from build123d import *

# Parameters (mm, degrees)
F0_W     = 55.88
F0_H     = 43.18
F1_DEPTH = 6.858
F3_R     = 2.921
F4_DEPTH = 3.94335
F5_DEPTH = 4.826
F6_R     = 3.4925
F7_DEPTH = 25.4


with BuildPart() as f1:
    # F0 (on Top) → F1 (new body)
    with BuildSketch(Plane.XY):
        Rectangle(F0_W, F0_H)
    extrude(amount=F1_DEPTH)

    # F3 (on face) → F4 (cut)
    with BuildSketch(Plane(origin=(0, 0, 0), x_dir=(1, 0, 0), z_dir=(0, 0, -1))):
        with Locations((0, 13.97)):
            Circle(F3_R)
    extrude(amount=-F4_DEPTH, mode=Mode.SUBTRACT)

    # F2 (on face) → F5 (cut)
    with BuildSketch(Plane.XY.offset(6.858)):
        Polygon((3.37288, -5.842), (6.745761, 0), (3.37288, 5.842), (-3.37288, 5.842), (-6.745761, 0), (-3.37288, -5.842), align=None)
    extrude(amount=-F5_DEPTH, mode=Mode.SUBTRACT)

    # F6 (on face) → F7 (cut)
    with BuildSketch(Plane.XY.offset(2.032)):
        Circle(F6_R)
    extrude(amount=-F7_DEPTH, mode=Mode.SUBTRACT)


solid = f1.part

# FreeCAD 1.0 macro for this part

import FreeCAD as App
import Part
import Sketcher
from FreeCAD import Vector
Q = App.Units.Quantity

doc = App.newDocument("Part")
params = doc.addObject("Spreadsheet::Sheet", "Params")
for row, (alias, value) in enumerate([
    ("sketch1_width", "2.2 in"),
    ("sketch1_height", "1.7 in"),
    ("pad1_length", "0.27 in"),
    ("sketch2_diameter", "0.23 in"),
    ("pocket1_length", "3.94335 mm"),
    ("pocket2_length", "0.19 in"),
    ("sketch4_diameter", "0.275 in"),
    ("pocket3_length", "1 in"),
], start=1):
    params.set(f"A{row}", alias)
    params.set(f"B{row}", "=" + value)
    params.setAlias(f"B{row}", alias)

body = doc.addObject("PartDesign::Body", "Body")

# Sketch on XY plane
sketch1 = body.newObject("Sketcher::SketchObject", "Sketch")
sketch1.AttachmentSupport = (doc.getObject("XY_Plane"), [""])
sketch1.MapMode = "FlatFace"
sketch1.addGeometry([
    Part.LineSegment(Vector(-28, 22, 0), Vector(-28, -22, 0)),
    Part.LineSegment(Vector(-28, -22, 0), Vector(28, -22, 0)),
    Part.LineSegment(Vector(28, -22, 0), Vector(28, 22, 0)),
    Part.LineSegment(Vector(28, 22, 0), Vector(-28, 22, 0)),
], False)
sketch1.addConstraint([
    Sketcher.Constraint("Coincident", 0, 2, 1, 1),
    Sketcher.Constraint("Coincident", 1, 2, 2, 1),
    Sketcher.Constraint("Coincident", 2, 2, 3, 1),
    Sketcher.Constraint("Coincident", 3, 2, 0, 1),
    Sketcher.Constraint("Vertical", 0),
    Sketcher.Constraint("Horizontal", 1),
    Sketcher.Constraint("Vertical", 2),
    Sketcher.Constraint("Horizontal", 3),
    Sketcher.Constraint("Symmetric", 0, 2, 2, 2, -1, 1),
    Sketcher.Constraint("DistanceX", 1, 1, 1, 2, Q("2.2 in")),
    Sketcher.Constraint("DistanceY", 0, 2, 0, 1, Q("1.7 in")),
])
sketch1.setExpression("Constraints[9]", "Params.sketch1_width")
sketch1.setExpression("Constraints[10]", "Params.sketch1_height")
pad1 = body.newObject("PartDesign::Pad", "Pad")
pad1.Profile = sketch1
pad1.setExpression("Length", "Params.pad1_length")

# Sketch on XY plane
sketch2 = body.newObject("Sketcher::SketchObject", "Sketch001")
sketch2.AttachmentSupport = (doc.getObject("XY_Plane"), [""])
sketch2.MapMode = "FlatFace"
sketch2.addGeometry(Part.Circle(Vector(0, -14, 0), Vector(0, 0, 1), 2.9), False)
sketch2.addConstraint([
    Sketcher.Constraint("PointOnObject", 0, 3, -2),
    Sketcher.Constraint("Diameter", 0, Q("0.23 in")),
    Sketcher.Constraint("DistanceY", 0, 3, -1, 1, Q("0.55 in")),
])
sketch2.setExpression("Constraints[1]", "Params.sketch2_diameter")
pocket1 = body.newObject("PartDesign::Pocket", "Pocket")
pocket1.Profile = sketch2
pocket1.setExpression("Length", "Params.pocket1_length")
pocket1.Reversed = True

# Sketch on XY plane
sketch3 = body.newObject("Sketcher::SketchObject", "Sketch002")
sketch3.AttachmentSupport = (doc.getObject("XY_Plane"), [""])
sketch3.MapMode = "FlatFace"
sketch3.AttachmentOffset = App.Placement(Vector(0, 0, 0.27 * 25.4), App.Rotation())
sketch3.addGeometry([
    Part.LineSegment(Vector(3, -6, 0), Vector(7, 0, 0)),  # 0
    Part.LineSegment(Vector(7, 0, 0), Vector(3, 6, 0)),  # 1
    Part.LineSegment(Vector(3, 6, 0), Vector(-3, 6, 0)),  # 2
    Part.LineSegment(Vector(-3, 6, 0), Vector(-7, 0, 0)),  # 3
    Part.LineSegment(Vector(-7, 0, 0), Vector(-3, -6, 0)),  # 4
    Part.LineSegment(Vector(-3, -6, 0), Vector(3, -6, 0)),  # 5
], False)
sketch3.addConstraint([
    Sketcher.Constraint("Coincident", 0, 2, 1, 1),
    Sketcher.Constraint("Coincident", 1, 2, 2, 1),
    Sketcher.Constraint("Coincident", 2, 2, 3, 1),
    Sketcher.Constraint("Coincident", 3, 2, 4, 1),
    Sketcher.Constraint("Coincident", 4, 2, 5, 1),
    Sketcher.Constraint("Coincident", 5, 2, 0, 1),
    Sketcher.Constraint("Horizontal", 2),
    Sketcher.Constraint("Horizontal", 5),
    Sketcher.Constraint("Symmetric", 0, 2, 3, 2, -1, 1),
    Sketcher.Constraint("Symmetric", 1, 2, 4, 2, -1, 1),
    Sketcher.Constraint("PointOnObject", 0, 2, -1),
    Sketcher.Constraint("Parallel", 0, 3),
    Sketcher.Constraint("Vertical", 2, 2, 4, 2),
    Sketcher.Constraint("Angle", 0, Q("59.999995 deg")),
    Sketcher.Constraint("DistanceY", -1, 1, 1, 2, Q("0.23 in")),
    Sketcher.Constraint("DistanceX", 2, 2, 2, 1, Q("6.74576 mm")),
])
pocket2 = body.newObject("PartDesign::Pocket", "Pocket001")
pocket2.Profile = sketch3
pocket2.setExpression("Length", "Params.pocket2_length")

# Sketch on XY plane
sketch4 = body.newObject("Sketcher::SketchObject", "Sketch003")
sketch4.AttachmentSupport = (doc.getObject("XY_Plane"), [""])
sketch4.MapMode = "FlatFace"
sketch4.AttachmentOffset = App.Placement(Vector(0, 0, 0.08 * 25.4), App.Rotation())
sketch4.addGeometry(Part.Circle(Vector(0, 0, 0), Vector(0, 0, 1), 3.5), False)
sketch4.addConstraint([
    Sketcher.Constraint("Coincident", 0, 3, -1, 1),
    Sketcher.Constraint("Diameter", 0, Q("0.275 in")),
])
sketch4.setExpression("Constraints[1]", "Params.sketch4_diameter")
pocket3 = body.newObject("PartDesign::Pocket", "Pocket002")
pocket3.Profile = sketch4
pocket3.setExpression("Length", "Params.pocket3_length")

doc.recompute()
